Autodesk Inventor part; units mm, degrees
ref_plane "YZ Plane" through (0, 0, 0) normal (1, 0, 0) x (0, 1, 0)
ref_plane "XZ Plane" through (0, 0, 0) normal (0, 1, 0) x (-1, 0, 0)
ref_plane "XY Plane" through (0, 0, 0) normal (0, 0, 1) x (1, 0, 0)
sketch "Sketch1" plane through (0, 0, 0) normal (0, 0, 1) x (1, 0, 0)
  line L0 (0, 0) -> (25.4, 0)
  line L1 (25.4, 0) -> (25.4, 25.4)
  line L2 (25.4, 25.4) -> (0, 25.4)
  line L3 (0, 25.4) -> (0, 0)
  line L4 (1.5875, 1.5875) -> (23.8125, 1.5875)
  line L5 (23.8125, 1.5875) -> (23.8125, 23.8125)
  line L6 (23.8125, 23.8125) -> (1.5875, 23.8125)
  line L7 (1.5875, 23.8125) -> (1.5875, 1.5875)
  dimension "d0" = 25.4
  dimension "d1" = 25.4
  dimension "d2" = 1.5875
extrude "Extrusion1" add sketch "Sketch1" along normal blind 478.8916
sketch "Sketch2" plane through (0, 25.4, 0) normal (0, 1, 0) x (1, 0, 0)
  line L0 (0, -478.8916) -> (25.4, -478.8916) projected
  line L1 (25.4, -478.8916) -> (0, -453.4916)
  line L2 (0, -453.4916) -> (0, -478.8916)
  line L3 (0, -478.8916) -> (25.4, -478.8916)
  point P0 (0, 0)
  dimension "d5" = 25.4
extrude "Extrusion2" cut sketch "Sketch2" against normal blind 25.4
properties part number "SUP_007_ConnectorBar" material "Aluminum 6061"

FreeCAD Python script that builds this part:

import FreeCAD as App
import Part
import Sketcher

V = App.Vector
Q = App.Units.Quantity

doc = App.newDocument("Part")
params = doc.addObject("Spreadsheet::Sheet", "Params")
for row, (alias, value) in enumerate([
    ("sketch1_width", "1 in"),
    ("pad1_length", "18.854 in"),
    ("sketch2_width", "1 in"),
    ("pocket1_length", "1 in"),
], start=1):
    params.set(f"A{row}", alias)
    params.set(f"B{row}", "=" + value)
    params.setAlias(f"B{row}", alias)

body = doc.addObject("PartDesign::Body", "Body")

# Sketch on XY plane
sketch1 = doc.addObject("Sketcher::SketchObject", "Sketch")
body.addObject(sketch1)
sketch1.AttachmentSupport = (doc.XY_Plane, [""])
sketch1.MapMode = "FlatFace"
sketch1.addGeometry(Part.LineSegment(V(0, 25, 0), V(0, 0, 0)), False)
sketch1.addGeometry(Part.LineSegment(V(0, 0, 0), V(25, 0, 0)), False)
sketch1.addGeometry(Part.LineSegment(V(25, 0, 0), V(25, 25, 0)), False)
sketch1.addGeometry(Part.LineSegment(V(25, 25, 0), V(0, 25, 0)), False)
sketch1.addGeometry(Part.LineSegment(V(24, 2, 0), V(2, 2, 0)), False)
sketch1.addGeometry(Part.LineSegment(V(2, 2, 0), V(2, 24, 0)), False)
sketch1.addGeometry(Part.LineSegment(V(2, 24, 0), V(24, 24, 0)), False)
sketch1.addGeometry(Part.LineSegment(V(24, 24, 0), V(24, 2, 0)), False)
sketch1.addConstraint(Sketcher.Constraint("Coincident", 0, 2, 1, 1))
sketch1.addConstraint(Sketcher.Constraint("Coincident", 1, 2, 2, 1))
sketch1.addConstraint(Sketcher.Constraint("Coincident", 2, 2, 3, 1))
sketch1.addConstraint(Sketcher.Constraint("Coincident", 3, 2, 0, 1))
sketch1.addConstraint(Sketcher.Constraint("Coincident", 4, 2, 5, 1))
sketch1.addConstraint(Sketcher.Constraint("Coincident", 5, 2, 6, 1))
sketch1.addConstraint(Sketcher.Constraint("Coincident", 6, 2, 7, 1))
sketch1.addConstraint(Sketcher.Constraint("Coincident", 7, 2, 4, 1))
sketch1.addConstraint(Sketcher.Constraint("Vertical", 0))
sketch1.addConstraint(Sketcher.Constraint("Horizontal", 1))
sketch1.addConstraint(Sketcher.Constraint("Vertical", 2))
sketch1.addConstraint(Sketcher.Constraint("Horizontal", 3))
sketch1.addConstraint(Sketcher.Constraint("Horizontal", 4))
sketch1.addConstraint(Sketcher.Constraint("Vertical", 5))
sketch1.addConstraint(Sketcher.Constraint("Horizontal", 6))
sketch1.addConstraint(Sketcher.Constraint("Vertical", 7))
sketch1.addConstraint(Sketcher.Constraint("Coincident", 0, 2, -1, 1))
sketch1.addConstraint(Sketcher.Constraint("Equal", 3, 0))
sketch1.addConstraint(Sketcher.Constraint("Equal", 6, 5))
sketch1.addConstraint(Sketcher.Constraint("DistanceX", 1, 1, 1, 2, Q("1 in")))
sketch1.addConstraint(Sketcher.Constraint("DistanceX", -1, 1, 4, 2, Q("0.0625 in")))
sketch1.addConstraint(Sketcher.Constraint("DistanceY", -1, 1, 4, 2, Q("0.0625 in")))
sketch1.addConstraint(Sketcher.Constraint("DistanceY", 5, 2, 3, 2, Q("0.0625 in")))
sketch1.setExpression("Constraints[19]", "Params.sketch1_width")
pad1 = doc.addObject("PartDesign::Pad", "Pad")
body.addObject(pad1)
pad1.Profile = sketch1
pad1.setExpression("Length", "Params.pad1_length")

# Sketch on XZ plane
sketch2 = doc.addObject("Sketcher::SketchObject", "Sketch001")
body.addObject(sketch2)
sketch2.AttachmentSupport = (doc.XZ_Plane, [""])
sketch2.MapMode = "FlatFace"
sketch2.AttachmentOffset = App.Placement(V(0, 0, -1 * 25.4), App.Rotation())
sketch2.addGeometry(Part.LineSegment(V(0, 453, 0), V(0, 479, 0)), False)
sketch2.addGeometry(Part.LineSegment(V(0, 479, 0), V(25, 479, 0)), False)
sketch2.addGeometry(Part.LineSegment(V(25, 479, 0), V(0, 453, 0)), False)
sketch2.addConstraint(Sketcher.Constraint("Coincident", 0, 2, 1, 1))
sketch2.addConstraint(Sketcher.Constraint("Coincident", 1, 2, 2, 1))
sketch2.addConstraint(Sketcher.Constraint("Coincident", 2, 2, 0, 1))
sketch2.addConstraint(Sketcher.Constraint("Vertical", 0))
sketch2.addConstraint(Sketcher.Constraint("Horizontal", 1))
sketch2.addConstraint(Sketcher.Constraint("PointOnObject", 0, 2, -2))
sketch2.addConstraint(Sketcher.Constraint("Equal", 1, 0))
sketch2.addConstraint(Sketcher.Constraint("DistanceX", 1, 1, 1, 2, Q("1 in")))
sketch2.addConstraint(Sketcher.Constraint("DistanceY", -1, 1, 0, 2, Q("18.854 in")))
sketch2.setExpression("Constraints[7]", "Params.sketch2_width")
pocket1 = doc.addObject("PartDesign::Pocket", "Pocket")
body.addObject(pocket1)
pocket1.Profile = sketch2
pocket1.setExpression("Length", "Params.pocket1_length")
pocket1.Reversed = True

doc.recompute()
